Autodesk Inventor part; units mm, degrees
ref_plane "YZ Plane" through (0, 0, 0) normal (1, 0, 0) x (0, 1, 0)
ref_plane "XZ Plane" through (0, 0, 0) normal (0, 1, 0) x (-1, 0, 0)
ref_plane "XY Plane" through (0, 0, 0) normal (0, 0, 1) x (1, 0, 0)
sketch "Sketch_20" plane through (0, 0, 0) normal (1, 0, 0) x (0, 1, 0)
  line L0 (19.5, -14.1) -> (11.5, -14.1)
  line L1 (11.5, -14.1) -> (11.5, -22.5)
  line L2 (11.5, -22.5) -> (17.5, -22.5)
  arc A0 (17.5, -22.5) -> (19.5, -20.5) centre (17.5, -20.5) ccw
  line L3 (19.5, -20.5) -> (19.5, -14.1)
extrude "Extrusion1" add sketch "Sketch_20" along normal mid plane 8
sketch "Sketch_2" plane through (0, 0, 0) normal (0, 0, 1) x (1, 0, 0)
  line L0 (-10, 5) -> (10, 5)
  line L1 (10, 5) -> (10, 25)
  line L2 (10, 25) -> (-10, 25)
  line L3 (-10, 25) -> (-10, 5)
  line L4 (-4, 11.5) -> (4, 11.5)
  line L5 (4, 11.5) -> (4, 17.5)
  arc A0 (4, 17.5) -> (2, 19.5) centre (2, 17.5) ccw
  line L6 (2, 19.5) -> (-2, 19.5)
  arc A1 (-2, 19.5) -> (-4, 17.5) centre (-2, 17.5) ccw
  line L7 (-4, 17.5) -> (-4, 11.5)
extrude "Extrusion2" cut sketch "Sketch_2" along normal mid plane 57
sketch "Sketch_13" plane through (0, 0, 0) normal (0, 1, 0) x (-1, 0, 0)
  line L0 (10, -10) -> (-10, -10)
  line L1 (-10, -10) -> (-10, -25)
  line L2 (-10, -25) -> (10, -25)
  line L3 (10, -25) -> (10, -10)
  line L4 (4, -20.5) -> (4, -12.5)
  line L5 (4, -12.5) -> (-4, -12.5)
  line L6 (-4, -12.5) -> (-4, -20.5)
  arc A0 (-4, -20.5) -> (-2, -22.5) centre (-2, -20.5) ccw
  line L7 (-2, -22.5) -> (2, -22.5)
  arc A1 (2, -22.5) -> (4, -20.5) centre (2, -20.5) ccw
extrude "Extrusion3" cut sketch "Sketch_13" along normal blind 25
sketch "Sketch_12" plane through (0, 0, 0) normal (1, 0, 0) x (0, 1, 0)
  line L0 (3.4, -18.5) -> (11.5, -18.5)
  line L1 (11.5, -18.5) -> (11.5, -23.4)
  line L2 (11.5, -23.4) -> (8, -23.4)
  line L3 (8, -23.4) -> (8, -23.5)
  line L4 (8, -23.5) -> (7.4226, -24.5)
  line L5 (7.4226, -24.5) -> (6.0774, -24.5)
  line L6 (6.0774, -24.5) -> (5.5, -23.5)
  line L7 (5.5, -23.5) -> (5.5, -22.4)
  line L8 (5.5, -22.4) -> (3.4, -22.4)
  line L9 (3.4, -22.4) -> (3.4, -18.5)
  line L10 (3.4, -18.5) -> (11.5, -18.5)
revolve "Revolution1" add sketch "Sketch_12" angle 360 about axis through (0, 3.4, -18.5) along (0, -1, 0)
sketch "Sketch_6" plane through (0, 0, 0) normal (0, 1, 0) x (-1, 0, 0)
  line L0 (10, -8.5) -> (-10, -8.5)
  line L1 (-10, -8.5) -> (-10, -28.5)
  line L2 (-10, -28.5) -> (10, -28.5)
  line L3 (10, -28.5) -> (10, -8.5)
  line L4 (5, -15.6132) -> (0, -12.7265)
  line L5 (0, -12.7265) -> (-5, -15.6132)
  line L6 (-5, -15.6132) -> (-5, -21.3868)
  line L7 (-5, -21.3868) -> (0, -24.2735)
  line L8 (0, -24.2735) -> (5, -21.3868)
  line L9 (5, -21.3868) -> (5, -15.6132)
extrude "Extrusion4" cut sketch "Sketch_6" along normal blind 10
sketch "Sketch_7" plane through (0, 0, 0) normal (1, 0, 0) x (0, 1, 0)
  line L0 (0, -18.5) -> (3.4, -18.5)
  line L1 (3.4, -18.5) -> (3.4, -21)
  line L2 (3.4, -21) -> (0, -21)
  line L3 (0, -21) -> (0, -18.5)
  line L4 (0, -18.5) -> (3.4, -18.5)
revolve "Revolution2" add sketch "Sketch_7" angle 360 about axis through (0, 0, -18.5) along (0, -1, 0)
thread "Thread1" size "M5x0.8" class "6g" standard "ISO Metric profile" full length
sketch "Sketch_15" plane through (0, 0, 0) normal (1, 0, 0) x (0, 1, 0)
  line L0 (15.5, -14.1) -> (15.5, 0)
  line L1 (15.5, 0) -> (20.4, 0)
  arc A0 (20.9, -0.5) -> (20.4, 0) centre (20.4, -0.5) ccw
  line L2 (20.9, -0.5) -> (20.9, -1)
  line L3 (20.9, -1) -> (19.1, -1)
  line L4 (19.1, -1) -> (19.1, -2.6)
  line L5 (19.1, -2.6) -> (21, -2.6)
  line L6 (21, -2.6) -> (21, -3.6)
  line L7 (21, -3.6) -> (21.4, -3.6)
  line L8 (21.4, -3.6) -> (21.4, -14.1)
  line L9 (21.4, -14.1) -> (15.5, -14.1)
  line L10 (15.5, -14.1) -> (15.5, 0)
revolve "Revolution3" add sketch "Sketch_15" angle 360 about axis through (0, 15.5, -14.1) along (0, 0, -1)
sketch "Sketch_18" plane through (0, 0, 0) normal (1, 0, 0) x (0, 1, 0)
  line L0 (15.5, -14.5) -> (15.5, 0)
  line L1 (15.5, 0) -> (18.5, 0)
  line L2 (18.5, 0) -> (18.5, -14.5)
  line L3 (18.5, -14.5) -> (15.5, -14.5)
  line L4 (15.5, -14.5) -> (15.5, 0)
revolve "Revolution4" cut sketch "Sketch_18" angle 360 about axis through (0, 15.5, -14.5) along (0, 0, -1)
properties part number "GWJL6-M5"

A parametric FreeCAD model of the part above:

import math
import FreeCAD as App
import Part
import Sketcher

V = App.Vector
Q = App.Units.Quantity

doc = App.newDocument("Part")
body = doc.addObject("PartDesign::Body", "Body")

# Sketch on YZ plane
sketch1 = doc.addObject("Sketcher::SketchObject", "Sketch")
body.addObject(sketch1)
sketch1.AttachmentSupport = (doc.YZ_Plane, [""])
sketch1.MapMode = "FlatFace"
sketch1.addGeometry([
    Part.LineSegment(V(19.5, -20.5, 0), V(19.5, -14.1, 0)),  # 0
    Part.LineSegment(V(19.5, -14.1, 0), V(11.5, -14.1, 0)),  # 1
    Part.LineSegment(V(11.5, -14.1, 0), V(11.5, -22.5, 0)),  # 2
    Part.LineSegment(V(11.5, -22.5, 0), V(17.5, -22.5, 0)),  # 3
    Part.ArcOfCircle(Part.Circle(V(17.5, -20.5, 0), V(0, 0, 1), 2), math.radians(-90), math.radians(0)),  # 4
], False)
sketch1.addConstraint([
    Sketcher.Constraint("Coincident", 0, 2, 1, 1),
    Sketcher.Constraint("Coincident", 1, 2, 2, 1),
    Sketcher.Constraint("Coincident", 2, 2, 3, 1),
    Sketcher.Constraint("Tangent", 3, 2, 4, 1),
    Sketcher.Constraint("Tangent", 4, 2, 0, 1),
    Sketcher.Constraint("Vertical", 0),
    Sketcher.Constraint("Horizontal", 1),
    Sketcher.Constraint("Vertical", 2),
    Sketcher.Constraint("Horizontal", 3),
    Sketcher.Constraint("Radius", 4, Q("2 mm")),
    Sketcher.Constraint("DistanceX", 1, 2, 1, 1, Q("8 mm")),
    Sketcher.Constraint("DistanceY", 0, 1, 0, 2, Q("6.4 mm")),
    Sketcher.Constraint("DistanceX", -1, 1, 4, 3, Q("17.5 mm")),
    Sketcher.Constraint("DistanceY", 4, 3, -1, 1, Q("20.5 mm")),
])
pad1 = doc.addObject("PartDesign::Pad", "Pad")
body.addObject(pad1)
pad1.Profile = sketch1
pad1.Length = 8
pad1.Midplane = True

# Sketch on XY plane
sketch2 = doc.addObject("Sketcher::SketchObject", "Sketch001")
body.addObject(sketch2)
sketch2.AttachmentSupport = (doc.XY_Plane, [""])
sketch2.MapMode = "FlatFace"
sketch2.addGeometry([
    Part.LineSegment(V(-10, 25, 0), V(-10, 5, 0)),  # 0
    Part.LineSegment(V(-10, 5, 0), V(10, 5, 0)),  # 1
    Part.LineSegment(V(10, 5, 0), V(10, 25, 0)),  # 2
    Part.LineSegment(V(10, 25, 0), V(-10, 25, 0)),  # 3
    Part.LineSegment(V(4, 11.5, 0), V(-4, 11.5, 0)),  # 4
    Part.LineSegment(V(-4, 11.5, 0), V(-4, 17.5, 0)),  # 5
    Part.ArcOfCircle(Part.Circle(V(-2, 17.5, 0), V(0, 0, 1), 2), math.radians(90), math.radians(180)),  # 6
    Part.LineSegment(V(-2, 19.5, 0), V(2, 19.5, 0)),  # 7
    Part.ArcOfCircle(Part.Circle(V(2, 17.5, 0), V(0, 0, 1), 2), math.radians(0), math.radians(90)),  # 8
    Part.LineSegment(V(4, 17.5, 0), V(4, 11.5, 0)),  # 9
], False)
sketch2.addConstraint([
    Sketcher.Constraint("Coincident", 0, 2, 1, 1),
    Sketcher.Constraint("Coincident", 1, 2, 2, 1),
    Sketcher.Constraint("Coincident", 2, 2, 3, 1),
    Sketcher.Constraint("Coincident", 3, 2, 0, 1),
    Sketcher.Constraint("Coincident", 4, 2, 5, 1),
    Sketcher.Constraint("Tangent", 5, 2, 6, 2),
    Sketcher.Constraint("Tangent", 6, 1, 7, 1),
    Sketcher.Constraint("Tangent", 7, 2, 8, 2),
    Sketcher.Constraint("Tangent", 8, 1, 9, 1),
    Sketcher.Constraint("Coincident", 9, 2, 4, 1),
    Sketcher.Constraint("Vertical", 0),
    Sketcher.Constraint("Horizontal", 1),
    Sketcher.Constraint("Vertical", 2),
    Sketcher.Constraint("Horizontal", 3),
    Sketcher.Constraint("Horizontal", 4),
    Sketcher.Constraint("Vertical", 5),
    Sketcher.Constraint("Horizontal", 7),
    Sketcher.Constraint("Vertical", 9),
    Sketcher.Constraint("Equal", 6, 8),
    Sketcher.Constraint("Equal", 3, 0),
    Sketcher.Constraint("Radius", 6, Q("2 mm")),
    Sketcher.Constraint("DistanceX", 1, 1, 1, 2, Q("20 mm")),
    Sketcher.Constraint("DistanceX", 4, 2, 4, 1, Q("8 mm")),
    Sketcher.Constraint("DistanceY", 5, 1, 5, 2, Q("6 mm")),
    Sketcher.Constraint("DistanceX", 6, 3, -1, 1, Q("2 mm")),
    Sketcher.Constraint("DistanceX", 0, 2, -1, 1, Q("10 mm")),
    Sketcher.Constraint("DistanceY", -1, 1, 0, 2, Q("5 mm")),
    Sketcher.Constraint("DistanceY", -1, 1, 6, 3, Q("17.5 mm")),
])
pocket1 = doc.addObject("PartDesign::Pocket", "Pocket")
body.addObject(pocket1)
pocket1.Profile = sketch2
pocket1.Length = 57
pocket1.Midplane = True

# Sketch on XZ plane
sketch3 = doc.addObject("Sketcher::SketchObject", "Sketch002")
body.addObject(sketch3)
sketch3.AttachmentSupport = (doc.XZ_Plane, [""])
sketch3.MapMode = "FlatFace"
sketch3.addGeometry([
    Part.LineSegment(V(-10, -25, 0), V(-10, -10, 0)),  # 0
    Part.LineSegment(V(-10, -10, 0), V(10, -10, 0)),  # 1
    Part.LineSegment(V(10, -10, 0), V(10, -25, 0)),  # 2
    Part.LineSegment(V(10, -25, 0), V(-10, -25, 0)),  # 3
    Part.LineSegment(V(-4, -12.5, 0), V(-4, -20.5, 0)),  # 4
    Part.ArcOfCircle(Part.Circle(V(-2, -20.5, 0), V(0, 0, 1), 2), math.radians(180), math.radians(270)),  # 5
    Part.LineSegment(V(-2, -22.5, 0), V(2, -22.5, 0)),  # 6
    Part.ArcOfCircle(Part.Circle(V(2, -20.5, 0), V(0, 0, 1), 2), math.radians(-90), math.radians(0)),  # 7
    Part.LineSegment(V(4, -20.5, 0), V(4, -12.5, 0)),  # 8
    Part.LineSegment(V(4, -12.5, 0), V(-4, -12.5, 0)),  # 9
], False)
sketch3.addConstraint([
    Sketcher.Constraint("Coincident", 0, 2, 1, 1),
    Sketcher.Constraint("Coincident", 1, 2, 2, 1),
    Sketcher.Constraint("Coincident", 2, 2, 3, 1),
    Sketcher.Constraint("Coincident", 3, 2, 0, 1),
    Sketcher.Constraint("Tangent", 4, 2, 5, 1),
    Sketcher.Constraint("Tangent", 5, 2, 6, 1),
    Sketcher.Constraint("Tangent", 6, 2, 7, 1),
    Sketcher.Constraint("Tangent", 7, 2, 8, 1),
    Sketcher.Constraint("Coincident", 8, 2, 9, 1),
    Sketcher.Constraint("Coincident", 9, 2, 4, 1),
    Sketcher.Constraint("Vertical", 0),
    Sketcher.Constraint("Horizontal", 1),
    Sketcher.Constraint("Vertical", 2),
    Sketcher.Constraint("Horizontal", 3),
    Sketcher.Constraint("Vertical", 4),
    Sketcher.Constraint("Horizontal", 6),
    Sketcher.Constraint("Vertical", 8),
    Sketcher.Constraint("Horizontal", 9),
    Sketcher.Constraint("Equal", 5, 7),
    Sketcher.Constraint("Equal", 9, 4),
    Sketcher.Constraint("Radius", 5, Q("2 mm")),
    Sketcher.Constraint("DistanceX", 1, 1, 1, 2, Q("20 mm")),
    Sketcher.Constraint("DistanceX", 6, 1, 6, 2, Q("4 mm")),
    Sketcher.Constraint("DistanceY", 0, 1, 0, 2, Q("15 mm")),
    Sketcher.Constraint("DistanceX", 5, 3, -1, 1, Q("2 mm")),
    Sketcher.Constraint("DistanceX", 0, 2, -1, 1, Q("10 mm")),
    Sketcher.Constraint("DistanceY", 0, 2, -1, 1, Q("10 mm")),
    Sketcher.Constraint("DistanceY", 5, 3, -1, 1, Q("20.5 mm")),
])
pocket2 = doc.addObject("PartDesign::Pocket", "Pocket001")
body.addObject(pocket2)
pocket2.Profile = sketch3
pocket2.Length = 25

# Sketch on YZ plane
sketch4 = doc.addObject("Sketcher::SketchObject", "Sketch003")
body.addObject(sketch4)
sketch4.AttachmentSupport = (doc.YZ_Plane, [""])
sketch4.MapMode = "FlatFace"
sketch4.addGeometry([
    Part.LineSegment(V(11.5, -18.5, 0), V(3.4, -18.5, 0)),  # 0
    Part.LineSegment(V(3.4, -18.5, 0), V(3.4, -22.4, 0)),  # 1
    Part.LineSegment(V(3.4, -22.4, 0), V(5.5, -22.4, 0)),  # 2
    Part.LineSegment(V(5.5, -22.4, 0), V(5.5, -23.5, 0)),  # 3
    Part.LineSegment(V(5.5, -23.5, 0), V(6.08, -24.5, 0)),  # 4
    Part.LineSegment(V(6.08, -24.5, 0), V(7.42, -24.5, 0)),  # 5
    Part.LineSegment(V(7.42, -24.5, 0), V(8, -23.5, 0)),  # 6
    Part.LineSegment(V(8, -23.5, 0), V(8, -23.4, 0)),  # 7
    Part.LineSegment(V(8, -23.4, 0), V(11.5, -23.4, 0)),  # 8
    Part.LineSegment(V(11.5, -23.4, 0), V(11.5, -18.5, 0)),  # 9
], False)
sketch4.addGeometry(Part.LineSegment(V(11.5, -18.5, 0), V(3.4, -18.5, 0)), True)  # axis
sketch4.addConstraint([
    Sketcher.Constraint("Coincident", 0, 2, 1, 1),
    Sketcher.Constraint("Coincident", 1, 2, 2, 1),
    Sketcher.Constraint("Coincident", 2, 2, 3, 1),
    Sketcher.Constraint("Coincident", 3, 2, 4, 1),
    Sketcher.Constraint("Coincident", 4, 2, 5, 1),
    Sketcher.Constraint("Coincident", 5, 2, 6, 1),
    Sketcher.Constraint("Coincident", 6, 2, 7, 1),
    Sketcher.Constraint("Coincident", 7, 2, 8, 1),
    Sketcher.Constraint("Coincident", 8, 2, 9, 1),
    Sketcher.Constraint("Coincident", 9, 2, 0, 1),
    Sketcher.Constraint("Horizontal", 0),
    Sketcher.Constraint("Vertical", 1),
    Sketcher.Constraint("Horizontal", 2),
    Sketcher.Constraint("Vertical", 3),
    Sketcher.Constraint("Horizontal", 5),
    Sketcher.Constraint("Vertical", 7),
    Sketcher.Constraint("Horizontal", 8),
    Sketcher.Constraint("Vertical", 9),
    Sketcher.Constraint("Horizontal", 10),
    Sketcher.Constraint("Coincident", 10, 1, 9, 2),
    Sketcher.Constraint("Horizontal", 3, 2, 6, 2),
    Sketcher.Constraint("Vertical", 1, 2, 10, 2),
    Sketcher.Constraint("Equal", 4, 6),
    Sketcher.Constraint("DistanceX", 0, 2, 0, 1, Q("8.1 mm")),
    Sketcher.Constraint("DistanceX", 2, 1, 2, 2, Q("2.1 mm")),
    Sketcher.Constraint("DistanceX", 8, 1, 8, 2, Q("3.5 mm")),
    Sketcher.Constraint("DistanceY", 1, 2, 1, 1, Q("3.9 mm")),
    Sketcher.Constraint("DistanceY", 3, 2, 3, 1, Q("1.1 mm")),
    Sketcher.Constraint("DistanceY", 7, 1, 7, 2, Q("0.1 mm")),
    Sketcher.Constraint("DistanceX", -1, 1, 6, 2, Q("8 mm")),
    Sketcher.Constraint("DistanceY", 4, 2, 3, 2, Q("1 mm")),
    Sketcher.Constraint("DistanceY", 0, 2, -1, 1, Q("18.5 mm")),
    Sketcher.Constraint("DistanceX", 5, 1, 5, 2, Q("1.3452 mm")),
])
revolution = doc.addObject("PartDesign::Revolution", "Revolution")
body.addObject(revolution)
revolution.Profile = sketch4
revolution.ReferenceAxis = (sketch4, ["Axis0"])
revolution.Angle = 360

# Sketch on XZ plane
sketch5 = doc.addObject("Sketcher::SketchObject", "Sketch004")
body.addObject(sketch5)
sketch5.AttachmentSupport = (doc.XZ_Plane, [""])
sketch5.MapMode = "FlatFace"
sketch5.addGeometry([
    Part.LineSegment(V(-10, -28, 0), V(-10, -8, 0)),  # 0
    Part.LineSegment(V(-10, -8, 0), V(10, -8, 0)),  # 1
    Part.LineSegment(V(10, -8, 0), V(10, -28, 0)),  # 2
    Part.LineSegment(V(10, -28, 0), V(-10, -28, 0)),  # 3
    Part.LineSegment(V(0, -13, 0), V(-5, -16, 0)),  # 4
    Part.LineSegment(V(-5, -16, 0), V(-5, -21, 0)),  # 5
    Part.LineSegment(V(-5, -21, 0), V(0, -24, 0)),  # 6
    Part.LineSegment(V(0, -24, 0), V(5, -21, 0)),  # 7
    Part.LineSegment(V(5, -21, 0), V(5, -16, 0)),  # 8
    Part.LineSegment(V(5, -16, 0), V(0, -13, 0)),  # 9
], False)
sketch5.addConstraint([
    Sketcher.Constraint("Coincident", 0, 2, 1, 1),
    Sketcher.Constraint("Coincident", 1, 2, 2, 1),
    Sketcher.Constraint("Coincident", 2, 2, 3, 1),
    Sketcher.Constraint("Coincident", 3, 2, 0, 1),
    Sketcher.Constraint("Coincident", 4, 2, 5, 1),
    Sketcher.Constraint("Coincident", 5, 2, 6, 1),
    Sketcher.Constraint("Coincident", 6, 2, 7, 1),
    Sketcher.Constraint("Coincident", 7, 2, 8, 1),
    Sketcher.Constraint("Coincident", 8, 2, 9, 1),
    Sketcher.Constraint("Coincident", 9, 2, 4, 1),
    Sketcher.Constraint("Vertical", 0),
    Sketcher.Constraint("Horizontal", 1),
    Sketcher.Constraint("Vertical", 2),
    Sketcher.Constraint("Horizontal", 3),
    Sketcher.Constraint("Vertical", 5),
    Sketcher.Constraint("Vertical", 8),
    Sketcher.Constraint("Symmetric", 5, 2, 7, 2, -2),
    Sketcher.Constraint("PointOnObject", 6, 2, -2),
    Sketcher.Constraint("PointOnObject", 9, 2, -2),
    Sketcher.Constraint("Parallel", 4, 7),
    Sketcher.Constraint("Parallel", 6, 9),
    Sketcher.Constraint("Equal", 3, 0),
    Sketcher.Constraint("DistanceX", 1, 1, 1, 2, Q("20 mm")),
    Sketcher.Constraint("Angle", 4, Q("-150.0004 deg")),
    Sketcher.Constraint("DistanceX", 0, 2, -1, 1, Q("10 mm")),
    Sketcher.Constraint("DistanceX", 4, 2, -1, 1, Q("5 mm")),
    Sketcher.Constraint("DistanceY", 0, 2, -1, 1, Q("8.5 mm")),
    Sketcher.Constraint("DistanceY", 5, 2, 5, 1, Q("5.7736 mm")),
    Sketcher.Constraint("DistanceY", 4, 2, -1, 1, Q("15.6132 mm")),
])
pocket3 = doc.addObject("PartDesign::Pocket", "Pocket002")
body.addObject(pocket3)
pocket3.Profile = sketch5
pocket3.Length = 10

# Sketch on YZ plane
sketch6 = doc.addObject("Sketcher::SketchObject", "Sketch005")
body.addObject(sketch6)
sketch6.AttachmentSupport = (doc.YZ_Plane, [""])
sketch6.MapMode = "FlatFace"
sketch6.addGeometry([
    Part.LineSegment(V(3.4, -18.5, 0), V(0, -18.5, 0)),
    Part.LineSegment(V(0, -18.5, 0), V(0, -21, 0)),
    Part.LineSegment(V(0, -21, 0), V(3.4, -21, 0)),
    Part.LineSegment(V(3.4, -21, 0), V(3.4, -18.5, 0)),
], False)
sketch6.addGeometry(Part.LineSegment(V(3.4, -18.5, 0), V(0, -18.5, 0)), True)  # axis
sketch6.addConstraint([
    Sketcher.Constraint("Coincident", 0, 2, 1, 1),
    Sketcher.Constraint("Coincident", 1, 2, 2, 1),
    Sketcher.Constraint("Coincident", 2, 2, 3, 1),
    Sketcher.Constraint("Coincident", 3, 2, 0, 1),
    Sketcher.Constraint("Horizontal", 0),
    Sketcher.Constraint("Vertical", 1),
    Sketcher.Constraint("Horizontal", 2),
    Sketcher.Constraint("Vertical", 3),
    Sketcher.Constraint("Horizontal", 4),
    Sketcher.Constraint("Coincident", 4, 1, 3, 2),
    Sketcher.Constraint("PointOnObject", 0, 2, -2),
    Sketcher.Constraint("PointOnObject", 4, 2, -2),
    Sketcher.Constraint("DistanceX", 0, 2, 0, 1, Q("3.4 mm")),
    Sketcher.Constraint("DistanceY", 1, 2, 1, 1, Q("2.5 mm")),
    Sketcher.Constraint("DistanceY", 1, 2, -1, 1, Q("21 mm")),
])
revolution2 = doc.addObject("PartDesign::Revolution", "Revolution001")
body.addObject(revolution2)
revolution2.Profile = sketch6
revolution2.ReferenceAxis = (sketch6, ["Axis0"])
revolution2.Angle = 360

# Sketch on YZ plane
sketch7 = doc.addObject("Sketcher::SketchObject", "Sketch006")
body.addObject(sketch7)
sketch7.AttachmentSupport = (doc.YZ_Plane, [""])
sketch7.MapMode = "FlatFace"
sketch7.addGeometry([
    Part.LineSegment(V(15.5, 0, 0), V(15.5, -14.1, 0)),  # 0
    Part.LineSegment(V(15.5, -14.1, 0), V(21.4, -14.1, 0)),  # 1
    Part.LineSegment(V(21.4, -14.1, 0), V(21.4, -3.6, 0)),  # 2
    Part.LineSegment(V(21.4, -3.6, 0), V(21, -3.6, 0)),  # 3
    Part.LineSegment(V(21, -3.6, 0), V(21, -2.6, 0)),  # 4
    Part.LineSegment(V(21, -2.6, 0), V(19.1, -2.6, 0)),  # 5
    Part.LineSegment(V(19.1, -2.6, 0), V(19.1, -1, 0)),  # 6
    Part.LineSegment(V(19.1, -1, 0), V(20.9, -1, 0)),  # 7
    Part.LineSegment(V(20.9, -1, 0), V(20.9, -0.5, 0)),  # 8
    Part.ArcOfCircle(Part.Circle(V(20.4, -0.5, 0), V(0, 0, 1), 0.5), math.radians(0), math.radians(90)),  # 9
    Part.LineSegment(V(20.4, 0, 0), V(15.5, 0, 0)),  # 10
], False)
sketch7.addGeometry(Part.LineSegment(V(15.5, 0, 0), V(15.5, -14.1, 0)), True)  # axis
sketch7.addConstraint([
    Sketcher.Constraint("Coincident", 0, 2, 1, 1),
    Sketcher.Constraint("Coincident", 1, 2, 2, 1),
    Sketcher.Constraint("Coincident", 2, 2, 3, 1),
    Sketcher.Constraint("Coincident", 3, 2, 4, 1),
    Sketcher.Constraint("Coincident", 4, 2, 5, 1),
    Sketcher.Constraint("Coincident", 5, 2, 6, 1),
    Sketcher.Constraint("Coincident", 6, 2, 7, 1),
    Sketcher.Constraint("Coincident", 7, 2, 8, 1),
    Sketcher.Constraint("Tangent", 8, 2, 9, 1),
    Sketcher.Constraint("Tangent", 9, 2, 10, 1),
    Sketcher.Constraint("Coincident", 10, 2, 0, 1),
    Sketcher.Constraint("Vertical", 0),
    Sketcher.Constraint("Horizontal", 1),
    Sketcher.Constraint("Vertical", 2),
    Sketcher.Constraint("Horizontal", 3),
    Sketcher.Constraint("Vertical", 4),
    Sketcher.Constraint("Horizontal", 5),
    Sketcher.Constraint("Vertical", 6),
    Sketcher.Constraint("Horizontal", 7),
    Sketcher.Constraint("Vertical", 8),
    Sketcher.Constraint("Horizontal", 10),
    Sketcher.Constraint("Vertical", 11),
    Sketcher.Constraint("Coincident", 11, 1, 10, 2),
    Sketcher.Constraint("PointOnObject", 9, 2, -1),
    Sketcher.Constraint("Horizontal", 1, 2, 11, 2),
    Sketcher.Constraint("Radius", 9, Q("0.5 mm")),
    Sketcher.Constraint("DistanceY", 4, 1, 4, 2, Q("1 mm")),
    Sketcher.Constraint("DistanceX", 1, 1, 1, 2, Q("5.9 mm")),
    Sketcher.Constraint("DistanceX", 3, 2, 3, 1, Q("0.4 mm")),
    Sketcher.Constraint("DistanceX", 5, 2, 5, 1, Q("1.9 mm")),
    Sketcher.Constraint("DistanceX", 7, 1, 7, 2, Q("1.8 mm")),
    Sketcher.Constraint("DistanceY", 0, 2, 0, 1, Q("14.1 mm")),
    Sketcher.Constraint("DistanceY", 2, 1, 2, 2, Q("10.5 mm")),
    Sketcher.Constraint("DistanceY", 6, 1, 6, 2, Q("1.6 mm")),
    Sketcher.Constraint("DistanceX", -1, 1, 3, 2, Q("21 mm")),
])
revolution3 = doc.addObject("PartDesign::Revolution", "Revolution002")
body.addObject(revolution3)
revolution3.Profile = sketch7
revolution3.ReferenceAxis = (sketch7, ["Axis0"])
revolution3.Angle = 360

# Sketch on YZ plane
sketch8 = doc.addObject("Sketcher::SketchObject", "Sketch007")
body.addObject(sketch8)
sketch8.AttachmentSupport = (doc.YZ_Plane, [""])
sketch8.MapMode = "FlatFace"
sketch8.addGeometry([
    Part.LineSegment(V(15.5, 0, 0), V(15.5, -14.5, 0)),
    Part.LineSegment(V(15.5, -14.5, 0), V(18.5, -14.5, 0)),
    Part.LineSegment(V(18.5, -14.5, 0), V(18.5, 0, 0)),
    Part.LineSegment(V(18.5, 0, 0), V(15.5, 0, 0)),
], False)
sketch8.addGeometry(Part.LineSegment(V(15.5, 0, 0), V(15.5, -14.5, 0)), True)  # axis
sketch8.addConstraint([
    Sketcher.Constraint("Coincident", 0, 2, 1, 1),
    Sketcher.Constraint("Coincident", 1, 2, 2, 1),
    Sketcher.Constraint("Coincident", 2, 2, 3, 1),
    Sketcher.Constraint("Coincident", 3, 2, 0, 1),
    Sketcher.Constraint("Vertical", 0),
    Sketcher.Constraint("Horizontal", 1),
    Sketcher.Constraint("Vertical", 2),
    Sketcher.Constraint("Horizontal", 3),
    Sketcher.Constraint("Vertical", 4),
    Sketcher.Constraint("Coincident", 4, 1, 3, 2),
    Sketcher.Constraint("PointOnObject", 2, 2, -1),
    Sketcher.Constraint("Horizontal", 1, 2, 4, 2),
    Sketcher.Constraint("DistanceX", 1, 1, 1, 2, Q("3 mm")),
    Sketcher.Constraint("DistanceY", 0, 2, 0, 1, Q("14.5 mm")),
    Sketcher.Constraint("DistanceX", -1, 1, 0, 2, Q("15.5 mm")),
])
groove = doc.addObject("PartDesign::Groove", "Groove")
body.addObject(groove)
groove.Profile = sketch8
groove.ReferenceAxis = (sketch8, ["Axis0"])
groove.Angle = 360

doc.recompute()
